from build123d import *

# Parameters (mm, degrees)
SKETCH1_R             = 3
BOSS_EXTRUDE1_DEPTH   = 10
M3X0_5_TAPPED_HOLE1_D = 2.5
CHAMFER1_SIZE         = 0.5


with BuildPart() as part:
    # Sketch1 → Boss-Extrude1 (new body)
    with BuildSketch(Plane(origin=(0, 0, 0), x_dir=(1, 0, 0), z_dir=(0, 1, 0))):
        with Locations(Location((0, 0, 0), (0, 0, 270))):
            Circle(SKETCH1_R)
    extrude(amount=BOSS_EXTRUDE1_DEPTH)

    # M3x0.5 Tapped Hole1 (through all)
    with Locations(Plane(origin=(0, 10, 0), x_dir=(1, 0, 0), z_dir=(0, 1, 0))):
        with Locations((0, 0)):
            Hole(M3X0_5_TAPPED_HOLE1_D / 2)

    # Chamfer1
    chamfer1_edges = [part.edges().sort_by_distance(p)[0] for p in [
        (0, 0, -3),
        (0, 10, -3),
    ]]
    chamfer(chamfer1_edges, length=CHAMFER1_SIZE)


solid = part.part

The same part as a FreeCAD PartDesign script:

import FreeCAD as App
import Part
import Sketcher
from FreeCAD import Vector
Q = App.Units.Quantity


def edges_at(feature, points):
    """Names of the edges that pass closest to the given points."""
    edges = feature.Shape.Edges
    near = lambda p: min(range(len(edges)), key=lambda i: edges[i].distToShape(Part.Vertex(*p))[0])
    return sorted({f"Edge{near(p) + 1}" for p in points})

doc = App.newDocument("Part")
body = doc.addObject("PartDesign::Body", "Body")

# Sketch on XZ plane
sketch1 = body.newObject("Sketcher::SketchObject", "Sketch")
sketch1.AttachmentSupport = (doc.getObject("XZ_Plane"), [""])
sketch1.MapMode = "FlatFace"
sketch1.addGeometry(Part.Circle(Vector(0, 0, 0), Vector(0, 0, 1), 3), False)
sketch1.addConstraint(Sketcher.Constraint("Coincident", 0, 3, -1, 1))
sketch1.addConstraint(Sketcher.Constraint("Diameter", 0, Q("6 mm")))
pad1 = body.newObject("PartDesign::Pad", "Pad")
pad1.Profile = sketch1
pad1.Length = 10
pad1.Reversed = True

# Sketch on XZ plane
sketch2 = body.newObject("Sketcher::SketchObject", "Sketch001")
sketch2.AttachmentSupport = (doc.getObject("XZ_Plane"), [""])
sketch2.MapMode = "FlatFace"
sketch2.AttachmentOffset = App.Placement(Vector(0, 0, -10), App.Rotation())
sketch2.addGeometry(Part.Circle(Vector(0, 0, 0), Vector(0, 0, 1), 1.2), False)
sketch2.addConstraint(Sketcher.Constraint("Coincident", 0, 3, -1, 1))
sketch2.addConstraint(Sketcher.Constraint("Diameter", 0, Q("2.5 mm")))
doc.recompute()
hole = body.newObject("PartDesign::Hole", "Hole")
hole.Profile = sketch2
hole.ThreadType = "None"
hole.Diameter = 2.5
hole.DepthType = "ThroughAll"
hole.Reversed = True
doc.recompute()

chamfer = body.newObject("PartDesign::Chamfer", "Chamfer")
chamfer.Base = (hole, edges_at(hole, [(0, 0, -3), (0, 10, -3)]))
chamfer.Size = 0.5

doc.recompute()
